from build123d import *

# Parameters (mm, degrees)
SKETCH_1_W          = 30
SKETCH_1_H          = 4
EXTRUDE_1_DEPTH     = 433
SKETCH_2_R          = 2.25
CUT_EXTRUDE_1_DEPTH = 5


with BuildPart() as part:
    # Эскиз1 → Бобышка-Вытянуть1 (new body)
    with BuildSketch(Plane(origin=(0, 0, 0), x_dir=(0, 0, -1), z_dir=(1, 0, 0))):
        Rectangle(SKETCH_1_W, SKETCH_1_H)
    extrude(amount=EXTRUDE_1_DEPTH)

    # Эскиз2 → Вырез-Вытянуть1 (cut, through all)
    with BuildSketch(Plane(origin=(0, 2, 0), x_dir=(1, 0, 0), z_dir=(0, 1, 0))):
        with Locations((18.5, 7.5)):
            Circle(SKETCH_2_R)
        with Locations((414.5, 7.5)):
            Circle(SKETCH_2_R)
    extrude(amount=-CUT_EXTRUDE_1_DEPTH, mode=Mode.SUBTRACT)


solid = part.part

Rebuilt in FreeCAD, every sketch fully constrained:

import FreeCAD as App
import Part
import Sketcher
from FreeCAD import Vector


def add_polygon(sketch, points):
    """Adds a closed chain of lines whose ends are joined by coincident constraints."""
    first, n = sketch.GeometryCount, len(points)
    for a, b in zip(points, points[1:] + points[:1]):
        sketch.addGeometry(Part.LineSegment(App.Vector(*a, 0), App.Vector(*b, 0)), False)
    for i in range(n):
        sketch.addConstraint(Sketcher.Constraint("Coincident", first + i, 2, first + (i + 1) % n, 1))

doc = App.newDocument("Part")
body = doc.addObject("PartDesign::Body", "Body")

sketch1 = body.newObject("Sketcher::SketchObject", "Sketch")
sketch1.AttachmentSupport = (doc.getObject("YZ_Plane"), [""])
sketch1.MapMode = "FlatFace"
add_polygon(sketch1, [(2, 15), (-2, 15), (-2, -15), (2, -15)])
sketch1.addConstraint(Sketcher.Constraint("Horizontal", 0))
sketch1.addConstraint(Sketcher.Constraint("Vertical", 1))
sketch1.addConstraint(Sketcher.Constraint("Horizontal", 2))
sketch1.addConstraint(Sketcher.Constraint("Vertical", 3))
sketch1.addConstraint(Sketcher.Constraint("Symmetric", 0, 2, 2, 2, -1, 1))
sketch1.addConstraint(Sketcher.Constraint("DistanceX", 0, 2, 0, 1, 4.0))
sketch1.addConstraint(Sketcher.Constraint("DistanceY", 1, 2, 1, 1, 30.0))
pad1 = body.newObject("PartDesign::Pad", "Pad")
pad1.Profile = sketch1
pad1.Length = 433

sketch2 = body.newObject("Sketcher::SketchObject", "Sketch001")
sketch2.AttachmentSupport = (doc.getObject("XZ_Plane"), [""])
sketch2.MapMode = "FlatFace"
sketch2.AttachmentOffset = App.Placement(Vector(0, 0, -2), App.Rotation())
sketch2.addGeometry(Part.Circle(Vector(18.5, -7.5, 0), Vector(0, 0, 1), 2.2), False)
sketch2.addGeometry(Part.Circle(Vector(414.5, -7.5, 0), Vector(0, 0, 1), 2.2), False)
sketch2.addConstraint(Sketcher.Constraint("Equal", 0, 1))
sketch2.addConstraint(Sketcher.Constraint("Horizontal", 0, 3, 1, 3))
sketch2.addConstraint(Sketcher.Constraint("Diameter", 0, 4.5))
sketch2.addConstraint(Sketcher.Constraint("DistanceX", 0, 3, 1, 3, 396.0))
sketch2.addConstraint(Sketcher.Constraint("DistanceX", -1, 1, 0, 3, 18.5))
sketch2.addConstraint(Sketcher.Constraint("DistanceY", 0, 3, -1, 1, 7.5))
pocket1 = body.newObject("PartDesign::Pocket", "Pocket")
pocket1.Profile = sketch2
pocket1.Type = "ThroughAll"
pocket1.Reversed = True

doc.recompute()
